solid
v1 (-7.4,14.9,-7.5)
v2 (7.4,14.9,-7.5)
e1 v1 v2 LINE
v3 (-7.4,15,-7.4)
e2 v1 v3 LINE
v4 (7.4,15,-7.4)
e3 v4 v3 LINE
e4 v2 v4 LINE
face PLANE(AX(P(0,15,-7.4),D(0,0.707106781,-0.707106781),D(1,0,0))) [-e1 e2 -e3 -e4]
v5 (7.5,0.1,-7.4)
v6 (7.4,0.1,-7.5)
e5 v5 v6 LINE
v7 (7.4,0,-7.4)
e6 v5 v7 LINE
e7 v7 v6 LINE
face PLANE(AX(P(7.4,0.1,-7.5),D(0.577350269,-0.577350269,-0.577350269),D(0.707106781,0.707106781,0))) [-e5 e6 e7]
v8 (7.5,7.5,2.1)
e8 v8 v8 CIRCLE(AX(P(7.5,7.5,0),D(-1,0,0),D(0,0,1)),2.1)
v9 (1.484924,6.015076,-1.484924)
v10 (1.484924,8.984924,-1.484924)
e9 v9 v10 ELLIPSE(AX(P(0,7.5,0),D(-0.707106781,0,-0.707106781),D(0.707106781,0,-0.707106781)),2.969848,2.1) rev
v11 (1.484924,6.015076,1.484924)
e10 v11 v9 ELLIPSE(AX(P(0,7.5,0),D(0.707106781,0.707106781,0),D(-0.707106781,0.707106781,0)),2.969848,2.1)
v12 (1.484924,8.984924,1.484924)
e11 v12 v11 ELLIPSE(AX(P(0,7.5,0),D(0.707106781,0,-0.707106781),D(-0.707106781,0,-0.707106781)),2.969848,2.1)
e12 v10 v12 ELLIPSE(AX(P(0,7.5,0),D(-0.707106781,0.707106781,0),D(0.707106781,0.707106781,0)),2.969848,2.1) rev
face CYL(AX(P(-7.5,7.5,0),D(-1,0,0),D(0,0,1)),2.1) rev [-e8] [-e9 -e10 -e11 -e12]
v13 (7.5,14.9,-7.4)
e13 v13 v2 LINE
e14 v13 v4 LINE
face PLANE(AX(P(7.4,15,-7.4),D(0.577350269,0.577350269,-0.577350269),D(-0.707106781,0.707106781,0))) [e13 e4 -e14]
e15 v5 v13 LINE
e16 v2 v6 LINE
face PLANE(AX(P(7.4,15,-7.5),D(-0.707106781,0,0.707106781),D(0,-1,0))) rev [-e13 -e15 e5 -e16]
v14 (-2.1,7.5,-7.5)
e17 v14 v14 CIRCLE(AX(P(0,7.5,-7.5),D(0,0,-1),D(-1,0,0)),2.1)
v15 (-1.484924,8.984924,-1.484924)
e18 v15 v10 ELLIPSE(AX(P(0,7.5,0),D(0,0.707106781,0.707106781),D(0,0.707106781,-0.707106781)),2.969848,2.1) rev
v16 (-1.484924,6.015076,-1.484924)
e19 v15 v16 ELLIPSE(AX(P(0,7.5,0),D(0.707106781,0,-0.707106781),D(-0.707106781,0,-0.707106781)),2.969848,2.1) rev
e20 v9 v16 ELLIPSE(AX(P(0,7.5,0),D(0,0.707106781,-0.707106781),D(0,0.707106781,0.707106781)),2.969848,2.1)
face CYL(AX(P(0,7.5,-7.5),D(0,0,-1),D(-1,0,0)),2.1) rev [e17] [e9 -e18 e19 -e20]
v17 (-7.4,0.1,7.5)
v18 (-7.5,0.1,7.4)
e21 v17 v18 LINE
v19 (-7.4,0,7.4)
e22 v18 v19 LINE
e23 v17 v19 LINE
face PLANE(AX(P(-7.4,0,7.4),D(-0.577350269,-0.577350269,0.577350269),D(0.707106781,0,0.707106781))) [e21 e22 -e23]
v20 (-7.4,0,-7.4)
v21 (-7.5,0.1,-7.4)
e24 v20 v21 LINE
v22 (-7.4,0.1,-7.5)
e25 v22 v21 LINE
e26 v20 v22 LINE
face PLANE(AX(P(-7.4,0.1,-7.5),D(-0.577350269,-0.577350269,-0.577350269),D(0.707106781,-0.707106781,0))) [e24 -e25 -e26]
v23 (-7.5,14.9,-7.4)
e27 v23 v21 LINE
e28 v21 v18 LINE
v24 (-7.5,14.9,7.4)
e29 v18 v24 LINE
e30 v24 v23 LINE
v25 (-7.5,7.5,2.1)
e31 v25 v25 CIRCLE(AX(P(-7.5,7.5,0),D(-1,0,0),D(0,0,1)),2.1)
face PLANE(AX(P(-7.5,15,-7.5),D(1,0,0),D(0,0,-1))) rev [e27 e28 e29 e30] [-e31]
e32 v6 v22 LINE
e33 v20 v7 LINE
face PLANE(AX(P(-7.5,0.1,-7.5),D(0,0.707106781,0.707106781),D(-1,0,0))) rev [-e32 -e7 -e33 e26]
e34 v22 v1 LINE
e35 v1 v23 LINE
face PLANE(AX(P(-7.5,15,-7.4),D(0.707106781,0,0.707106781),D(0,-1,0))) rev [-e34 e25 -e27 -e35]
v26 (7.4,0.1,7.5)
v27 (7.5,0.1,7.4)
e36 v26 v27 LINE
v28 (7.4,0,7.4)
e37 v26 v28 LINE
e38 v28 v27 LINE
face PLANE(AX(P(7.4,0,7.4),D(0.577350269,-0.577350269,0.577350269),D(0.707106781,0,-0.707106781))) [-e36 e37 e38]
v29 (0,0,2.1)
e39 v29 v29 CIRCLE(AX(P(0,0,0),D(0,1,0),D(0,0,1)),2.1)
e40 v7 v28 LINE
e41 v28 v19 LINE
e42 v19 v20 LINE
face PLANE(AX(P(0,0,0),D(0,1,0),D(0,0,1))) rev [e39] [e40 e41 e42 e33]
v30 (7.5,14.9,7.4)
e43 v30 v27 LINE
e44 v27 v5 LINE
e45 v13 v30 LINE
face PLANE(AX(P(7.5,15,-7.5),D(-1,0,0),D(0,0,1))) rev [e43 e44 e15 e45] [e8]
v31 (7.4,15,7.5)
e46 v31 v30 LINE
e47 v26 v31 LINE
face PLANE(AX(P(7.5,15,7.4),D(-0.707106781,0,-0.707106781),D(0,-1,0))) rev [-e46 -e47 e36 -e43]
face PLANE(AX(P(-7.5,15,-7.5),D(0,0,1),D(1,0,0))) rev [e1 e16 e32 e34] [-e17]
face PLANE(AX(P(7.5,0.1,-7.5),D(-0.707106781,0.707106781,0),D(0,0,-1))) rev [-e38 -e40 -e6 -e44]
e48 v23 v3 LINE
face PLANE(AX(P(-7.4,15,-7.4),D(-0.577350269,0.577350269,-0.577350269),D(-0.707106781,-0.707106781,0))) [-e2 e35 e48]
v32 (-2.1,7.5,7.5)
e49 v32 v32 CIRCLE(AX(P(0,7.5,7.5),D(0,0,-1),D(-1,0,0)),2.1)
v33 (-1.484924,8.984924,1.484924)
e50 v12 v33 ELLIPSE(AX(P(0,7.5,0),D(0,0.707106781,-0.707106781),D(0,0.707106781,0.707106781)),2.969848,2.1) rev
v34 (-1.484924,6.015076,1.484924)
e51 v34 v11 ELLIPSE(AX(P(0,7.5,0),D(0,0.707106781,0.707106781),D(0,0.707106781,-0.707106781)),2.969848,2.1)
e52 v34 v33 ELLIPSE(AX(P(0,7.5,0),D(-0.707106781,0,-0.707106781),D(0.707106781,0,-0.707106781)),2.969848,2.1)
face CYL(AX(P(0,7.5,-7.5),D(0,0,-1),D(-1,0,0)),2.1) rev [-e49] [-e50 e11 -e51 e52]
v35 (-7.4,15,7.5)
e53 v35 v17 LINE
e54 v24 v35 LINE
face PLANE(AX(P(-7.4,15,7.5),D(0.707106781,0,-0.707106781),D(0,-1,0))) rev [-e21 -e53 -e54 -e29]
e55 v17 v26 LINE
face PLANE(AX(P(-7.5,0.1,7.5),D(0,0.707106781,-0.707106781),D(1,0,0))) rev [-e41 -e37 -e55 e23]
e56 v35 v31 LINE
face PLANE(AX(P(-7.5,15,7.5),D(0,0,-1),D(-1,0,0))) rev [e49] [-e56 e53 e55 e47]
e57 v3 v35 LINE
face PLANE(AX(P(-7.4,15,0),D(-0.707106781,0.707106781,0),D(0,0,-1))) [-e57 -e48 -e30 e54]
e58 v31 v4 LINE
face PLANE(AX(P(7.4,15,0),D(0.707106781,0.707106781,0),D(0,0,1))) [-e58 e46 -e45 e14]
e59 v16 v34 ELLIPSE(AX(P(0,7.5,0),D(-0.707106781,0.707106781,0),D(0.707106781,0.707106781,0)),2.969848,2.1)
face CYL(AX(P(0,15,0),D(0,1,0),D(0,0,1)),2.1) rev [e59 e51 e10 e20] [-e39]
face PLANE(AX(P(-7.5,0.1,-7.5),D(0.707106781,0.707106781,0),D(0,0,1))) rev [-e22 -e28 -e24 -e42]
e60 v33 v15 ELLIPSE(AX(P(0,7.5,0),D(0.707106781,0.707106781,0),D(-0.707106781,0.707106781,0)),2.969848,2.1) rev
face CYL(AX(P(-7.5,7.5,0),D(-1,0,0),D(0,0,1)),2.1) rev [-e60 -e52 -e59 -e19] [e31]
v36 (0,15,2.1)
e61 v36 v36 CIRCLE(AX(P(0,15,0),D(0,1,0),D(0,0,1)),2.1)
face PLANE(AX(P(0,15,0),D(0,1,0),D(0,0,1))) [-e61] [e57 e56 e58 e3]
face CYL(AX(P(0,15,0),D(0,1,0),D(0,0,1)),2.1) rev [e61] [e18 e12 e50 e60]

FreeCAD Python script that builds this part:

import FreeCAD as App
import Part
import Sketcher
Q = App.Units.Quantity


def edges_at(feature, points):
    """Names of the edges that pass closest to the given points."""
    edges = feature.Shape.Edges
    near = lambda p: min(range(len(edges)), key=lambda i: edges[i].distToShape(Part.Vertex(*p))[0])
    return sorted({f"Edge{near(p) + 1}" for p in points})

doc = App.newDocument("Part")
body = doc.addObject("PartDesign::Body", "Body")

# Sketch on XZ plane
sketch1 = body.newObject("Sketcher::SketchObject", "Sketch")
sketch1.AttachmentSupport = (doc.getObject("XZ_Plane"), [""])
sketch1.MapMode = "FlatFace"
sketch1.addGeometry([
    Part.LineSegment(App.Vector(-8, -8, 0), App.Vector(-8, 8, 0)),
    Part.LineSegment(App.Vector(-8, 8, 0), App.Vector(8, 8, 0)),
    Part.LineSegment(App.Vector(8, 8, 0), App.Vector(8, -8, 0)),
    Part.LineSegment(App.Vector(8, -8, 0), App.Vector(-8, -8, 0)),
], False)
sketch1.addConstraint([
    Sketcher.Constraint("Coincident", 0, 2, 1, 1),
    Sketcher.Constraint("Coincident", 1, 2, 2, 1),
    Sketcher.Constraint("Coincident", 2, 2, 3, 1),
    Sketcher.Constraint("Coincident", 3, 2, 0, 1),
    Sketcher.Constraint("Vertical", 0),
    Sketcher.Constraint("Horizontal", 1),
    Sketcher.Constraint("Vertical", 2),
    Sketcher.Constraint("Horizontal", 3),
    Sketcher.Constraint("Symmetric", 0, 2, 2, 2, -1, 1),
    Sketcher.Constraint("Equal", 3, 0),
    Sketcher.Constraint("DistanceX", 1, 1, 1, 2, Q("15 mm")),
])
pad1 = body.newObject("PartDesign::Pad", "Pad")
pad1.Profile = sketch1
pad1.Length = 15
pad1.Reversed = True

# Sketch on XZ plane
sketch2 = body.newObject("Sketcher::SketchObject", "Sketch001")
sketch2.AttachmentSupport = (doc.getObject("XZ_Plane"), [""])
sketch2.MapMode = "FlatFace"
sketch2.AttachmentOffset = App.Placement(App.Vector(0, 0, -15), App.Rotation())
sketch2.addGeometry(Part.Circle(App.Vector(0, 0, 0), App.Vector(0, 0, 1), 2.1), False)
sketch2.addConstraint([
    Sketcher.Constraint("Coincident", 0, 3, -1, 1),
    Sketcher.Constraint("Diameter", 0, Q("4.2 mm")),
])
doc.recompute()
hole = body.newObject("PartDesign::Hole", "Hole")
hole.Profile = sketch2
hole.ThreadType = "None"
hole.Diameter = 4.2
hole.DepthType = "ThroughAll"
hole.Reversed = True

# Sketch on XY plane
sketch3 = body.newObject("Sketcher::SketchObject", "Sketch002")
sketch3.AttachmentSupport = (doc.getObject("XY_Plane"), [""])
sketch3.MapMode = "FlatFace"
sketch3.AttachmentOffset = App.Placement(App.Vector(0, 0, -7.5), App.Rotation())
sketch3.addGeometry(Part.Circle(App.Vector(0, 7.5, 0), App.Vector(0, 0, 1), 2.1), False)
sketch3.addConstraint([
    Sketcher.Constraint("PointOnObject", 0, 3, -2),
    Sketcher.Constraint("Diameter", 0, Q("4.2 mm")),
    Sketcher.Constraint("DistanceY", -1, 1, 0, 3, Q("7.5 mm")),
])
doc.recompute()
hole2 = body.newObject("PartDesign::Hole", "Hole001")
hole2.Profile = sketch3
hole2.ThreadType = "None"
hole2.Diameter = 4.2
hole2.DepthType = "ThroughAll"
hole2.Reversed = True

# Sketch on YZ plane
sketch4 = body.newObject("Sketcher::SketchObject", "Sketch003")
sketch4.AttachmentSupport = (doc.getObject("YZ_Plane"), [""])
sketch4.MapMode = "FlatFace"
sketch4.AttachmentOffset = App.Placement(App.Vector(0, 0, -7.5), App.Rotation())
sketch4.addGeometry(Part.Circle(App.Vector(7.5, 0, 0), App.Vector(0, 0, 1), 2.1), False)
sketch4.addConstraint([
    Sketcher.Constraint("PointOnObject", 0, 3, -1),
    Sketcher.Constraint("Diameter", 0, Q("4.2 mm")),
    Sketcher.Constraint("DistanceX", -1, 1, 0, 3, Q("7.5 mm")),
])
doc.recompute()
hole3 = body.newObject("PartDesign::Hole", "Hole002")
hole3.Profile = sketch4
hole3.ThreadType = "None"
hole3.Diameter = 4.2
hole3.DepthType = "ThroughAll"
hole3.Reversed = True
doc.recompute()

chamfer = body.newObject("PartDesign::Chamfer", "Chamfer")
chamfer.Base = (hole3, edges_at(hole3, [
    (-7.5, 15, 0),
    (7.5, 15, 0),
    (0, 0, 7.5),
    (-7.5, 0, 0),
    (0, 0, -7.5),
    (7.5, 0, 0),
    (7.5, 7.5, 7.5),
    (-7.5, 7.5, 7.5),
    (-7.5, 7.5, -7.5),
    (7.5, 7.5, -7.5),
    (0, 15, -7.5),
]))
chamfer.Size = 0.1

doc.recompute()
